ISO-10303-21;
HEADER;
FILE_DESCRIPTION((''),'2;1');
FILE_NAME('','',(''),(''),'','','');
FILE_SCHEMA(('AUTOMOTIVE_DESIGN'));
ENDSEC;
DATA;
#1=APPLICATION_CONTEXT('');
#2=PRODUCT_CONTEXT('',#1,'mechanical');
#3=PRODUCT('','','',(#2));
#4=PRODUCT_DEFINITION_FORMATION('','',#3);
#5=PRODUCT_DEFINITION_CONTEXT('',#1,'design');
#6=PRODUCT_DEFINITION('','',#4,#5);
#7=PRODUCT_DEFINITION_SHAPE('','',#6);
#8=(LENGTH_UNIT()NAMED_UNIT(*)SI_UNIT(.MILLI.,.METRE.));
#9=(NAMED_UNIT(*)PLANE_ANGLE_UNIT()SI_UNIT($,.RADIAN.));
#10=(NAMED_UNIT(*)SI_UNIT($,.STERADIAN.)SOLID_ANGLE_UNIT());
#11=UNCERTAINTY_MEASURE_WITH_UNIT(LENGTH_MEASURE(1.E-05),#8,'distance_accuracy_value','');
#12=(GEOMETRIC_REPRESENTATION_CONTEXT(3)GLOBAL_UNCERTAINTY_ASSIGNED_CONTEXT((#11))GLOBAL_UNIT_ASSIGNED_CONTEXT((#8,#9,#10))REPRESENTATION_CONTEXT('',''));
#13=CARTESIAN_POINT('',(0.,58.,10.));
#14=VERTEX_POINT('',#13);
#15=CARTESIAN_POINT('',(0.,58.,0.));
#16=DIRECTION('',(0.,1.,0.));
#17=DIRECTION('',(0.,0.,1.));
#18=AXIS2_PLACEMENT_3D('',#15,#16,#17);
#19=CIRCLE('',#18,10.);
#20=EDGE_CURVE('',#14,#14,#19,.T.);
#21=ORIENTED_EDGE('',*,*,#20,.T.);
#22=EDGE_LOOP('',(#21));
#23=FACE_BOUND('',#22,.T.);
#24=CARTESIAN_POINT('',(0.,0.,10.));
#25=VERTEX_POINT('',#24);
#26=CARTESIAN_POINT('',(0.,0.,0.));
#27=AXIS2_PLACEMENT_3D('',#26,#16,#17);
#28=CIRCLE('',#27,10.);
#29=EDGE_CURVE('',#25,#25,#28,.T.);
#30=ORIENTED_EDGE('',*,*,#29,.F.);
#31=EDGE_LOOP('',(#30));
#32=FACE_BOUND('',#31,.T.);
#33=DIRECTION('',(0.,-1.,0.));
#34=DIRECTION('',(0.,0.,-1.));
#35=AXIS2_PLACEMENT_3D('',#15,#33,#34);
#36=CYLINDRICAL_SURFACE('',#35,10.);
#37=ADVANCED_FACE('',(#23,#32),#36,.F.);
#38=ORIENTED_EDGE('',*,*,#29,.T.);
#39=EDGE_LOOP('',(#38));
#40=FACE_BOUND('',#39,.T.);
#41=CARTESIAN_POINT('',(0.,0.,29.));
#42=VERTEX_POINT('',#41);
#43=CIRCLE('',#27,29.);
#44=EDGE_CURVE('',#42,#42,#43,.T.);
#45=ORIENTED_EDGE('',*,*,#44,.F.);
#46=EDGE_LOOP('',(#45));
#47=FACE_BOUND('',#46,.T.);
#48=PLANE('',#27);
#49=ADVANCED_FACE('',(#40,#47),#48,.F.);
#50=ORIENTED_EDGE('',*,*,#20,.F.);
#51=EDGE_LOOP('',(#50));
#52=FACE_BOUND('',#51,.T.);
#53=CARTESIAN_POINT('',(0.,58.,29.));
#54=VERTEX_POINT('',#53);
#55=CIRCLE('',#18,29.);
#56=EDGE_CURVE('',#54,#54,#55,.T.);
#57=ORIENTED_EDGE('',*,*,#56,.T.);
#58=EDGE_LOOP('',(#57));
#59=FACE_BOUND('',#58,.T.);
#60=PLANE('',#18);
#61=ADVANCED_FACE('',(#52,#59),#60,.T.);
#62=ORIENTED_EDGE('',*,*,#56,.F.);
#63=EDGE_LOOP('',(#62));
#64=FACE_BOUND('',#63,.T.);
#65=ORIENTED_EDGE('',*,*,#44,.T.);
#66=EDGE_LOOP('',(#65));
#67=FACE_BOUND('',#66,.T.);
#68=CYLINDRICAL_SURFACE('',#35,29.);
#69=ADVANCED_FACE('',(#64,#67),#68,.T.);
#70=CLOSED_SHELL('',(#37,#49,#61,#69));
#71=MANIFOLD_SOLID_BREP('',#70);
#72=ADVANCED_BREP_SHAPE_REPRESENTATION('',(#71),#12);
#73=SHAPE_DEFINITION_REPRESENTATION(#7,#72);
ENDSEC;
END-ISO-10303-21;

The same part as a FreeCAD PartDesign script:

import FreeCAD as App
import Part
import Sketcher
from FreeCAD import Vector

doc = App.newDocument("Part")
body = doc.addObject("PartDesign::Body", "Body")

# Sketch on XZ plane
sketch1 = body.newObject("Sketcher::SketchObject", "Sketch")
sketch1.AttachmentSupport = (doc.getObject("XZ_Plane"), [""])
sketch1.MapMode = "FlatFace"
sketch1.addGeometry([
    Part.Circle(Vector(0, 0, 0), Vector(0, 0, 1), 29),
    Part.Circle(Vector(0, 0, 0), Vector(0, 0, 1), 10),
], False)
sketch1.addConstraint([
    Sketcher.Constraint("Coincident", 0, 3, -1, 1),
    Sketcher.Constraint("Coincident", 1, 3, -1, 1),
    Sketcher.Constraint("Diameter", 0, 58.0),
    Sketcher.Constraint("Diameter", 1, 20.0),
])
pad1 = body.newObject("PartDesign::Pad", "Pad")
pad1.Profile = sketch1
pad1.Length = 58
pad1.Reversed = True

doc.recompute()
